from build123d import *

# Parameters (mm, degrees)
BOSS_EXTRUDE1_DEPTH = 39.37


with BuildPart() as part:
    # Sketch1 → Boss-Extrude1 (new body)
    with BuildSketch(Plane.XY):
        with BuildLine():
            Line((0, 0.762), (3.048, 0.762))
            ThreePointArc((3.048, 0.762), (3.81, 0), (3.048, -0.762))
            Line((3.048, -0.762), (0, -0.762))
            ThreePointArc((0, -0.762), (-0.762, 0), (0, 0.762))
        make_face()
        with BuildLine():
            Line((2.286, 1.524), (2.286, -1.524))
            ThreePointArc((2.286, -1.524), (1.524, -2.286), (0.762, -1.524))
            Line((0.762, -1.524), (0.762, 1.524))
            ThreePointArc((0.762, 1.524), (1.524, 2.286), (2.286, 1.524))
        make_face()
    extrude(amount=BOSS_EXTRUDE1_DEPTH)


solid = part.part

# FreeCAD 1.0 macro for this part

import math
import FreeCAD as App
import Part
import Sketcher
Q = App.Units.Quantity

doc = App.newDocument("Part")
params = doc.addObject("Spreadsheet::Sheet", "Params")
for row, (alias, value) in enumerate([
    ("sketch1_radius", "0.03 in"),
    ("sketch1_width", "0.03 in"),
    ("pad1_length", "1.55 in"),
], start=1):
    params.set(f"A{row}", alias)
    params.set(f"B{row}", "=" + value)
    params.setAlias(f"B{row}", alias)

body = doc.addObject("PartDesign::Body", "Body")

sketch1 = doc.addObject("Sketcher::SketchObject", "Sketch")
body.addObject(sketch1)
sketch1.AttachmentSupport = (doc.XY_Plane, [""])
sketch1.MapMode = "FlatFace"
sketch1.addGeometry(Part.ArcOfCircle(Part.Circle(App.Vector(0, 0, 0), App.Vector(0, 0, 1), 0.8), math.radians(90), math.radians(270)), False)
sketch1.addGeometry(Part.LineSegment(App.Vector(0, -0.8, 0), App.Vector(0.8, -0.8, 0)), False)
sketch1.addGeometry(Part.LineSegment(App.Vector(0.8, -0.8, 0), App.Vector(0.8, -1.5, 0)), False)
sketch1.addGeometry(Part.ArcOfCircle(Part.Circle(App.Vector(1.5, -1.5, 0), App.Vector(0, 0, 1), 0.8), math.radians(180), math.radians(360)), False)
sketch1.addGeometry(Part.LineSegment(App.Vector(2.3, -1.5, 0), App.Vector(2.3, -0.8, 0)), False)
sketch1.addGeometry(Part.LineSegment(App.Vector(2.3, -0.8, 0), App.Vector(3, -0.8, 0)), False)
sketch1.addGeometry(Part.ArcOfCircle(Part.Circle(App.Vector(3, 0, 0), App.Vector(0, 0, 1), 0.8), math.radians(-90), math.radians(90)), False)
sketch1.addGeometry(Part.LineSegment(App.Vector(3, 0.8, 0), App.Vector(2.3, 0.8, 0)), False)
sketch1.addGeometry(Part.LineSegment(App.Vector(2.3, 0.8, 0), App.Vector(2.3, 1.5, 0)), False)
sketch1.addGeometry(Part.ArcOfCircle(Part.Circle(App.Vector(1.5, 1.5, 0), App.Vector(0, 0, 1), 0.8), math.radians(0), math.radians(180)), False)
sketch1.addGeometry(Part.LineSegment(App.Vector(0.8, 1.5, 0), App.Vector(0.8, 0.8, 0)), False)
sketch1.addGeometry(Part.LineSegment(App.Vector(0.8, 0.8, 0), App.Vector(0, 0.8, 0)), False)
sketch1.addConstraint(Sketcher.Constraint("Tangent", 0, 2, 1, 1))
sketch1.addConstraint(Sketcher.Constraint("Coincident", 1, 2, 2, 1))
sketch1.addConstraint(Sketcher.Constraint("Tangent", 2, 2, 3, 1))
sketch1.addConstraint(Sketcher.Constraint("Tangent", 3, 2, 4, 1))
sketch1.addConstraint(Sketcher.Constraint("Coincident", 4, 2, 5, 1))
sketch1.addConstraint(Sketcher.Constraint("Tangent", 5, 2, 6, 1))
sketch1.addConstraint(Sketcher.Constraint("Tangent", 6, 2, 7, 1))
sketch1.addConstraint(Sketcher.Constraint("Coincident", 7, 2, 8, 1))
sketch1.addConstraint(Sketcher.Constraint("Tangent", 8, 2, 9, 1))
sketch1.addConstraint(Sketcher.Constraint("Tangent", 9, 2, 10, 1))
sketch1.addConstraint(Sketcher.Constraint("Coincident", 10, 2, 11, 1))
sketch1.addConstraint(Sketcher.Constraint("Tangent", 11, 2, 0, 1))
sketch1.addConstraint(Sketcher.Constraint("Horizontal", 1))
sketch1.addConstraint(Sketcher.Constraint("Vertical", 2))
sketch1.addConstraint(Sketcher.Constraint("Vertical", 4))
sketch1.addConstraint(Sketcher.Constraint("Horizontal", 5))
sketch1.addConstraint(Sketcher.Constraint("Horizontal", 7))
sketch1.addConstraint(Sketcher.Constraint("Vertical", 8))
sketch1.addConstraint(Sketcher.Constraint("Vertical", 10))
sketch1.addConstraint(Sketcher.Constraint("Horizontal", 11))
sketch1.addConstraint(Sketcher.Constraint("Coincident", 0, 3, -1, 1))
sketch1.addConstraint(Sketcher.Constraint("Equal", 0, 3))
sketch1.addConstraint(Sketcher.Constraint("Equal", 3, 6))
sketch1.addConstraint(Sketcher.Constraint("Equal", 6, 9))
sketch1.addConstraint(Sketcher.Constraint("Symmetric", 3, 3, 9, 3, -1))
sketch1.addConstraint(Sketcher.Constraint("PointOnObject", 6, 3, -1))
sketch1.addConstraint(Sketcher.Constraint("Equal", 1, 5))
sketch1.addConstraint(Sketcher.Constraint("Equal", 11, 2))
sketch1.addConstraint(Sketcher.Constraint("Radius", 0, Q("0.03 in")))
sketch1.addConstraint(Sketcher.Constraint("DistanceX", 1, 1, 1, 2, Q("0.03 in")))
sketch1.setExpression("Constraints[28]", "Params.sketch1_radius")
sketch1.setExpression("Constraints[29]", "Params.sketch1_width")
pad1 = doc.addObject("PartDesign::Pad", "Pad")
body.addObject(pad1)
pad1.Profile = sketch1
pad1.setExpression("Length", "Params.pad1_length")

doc.recompute()
